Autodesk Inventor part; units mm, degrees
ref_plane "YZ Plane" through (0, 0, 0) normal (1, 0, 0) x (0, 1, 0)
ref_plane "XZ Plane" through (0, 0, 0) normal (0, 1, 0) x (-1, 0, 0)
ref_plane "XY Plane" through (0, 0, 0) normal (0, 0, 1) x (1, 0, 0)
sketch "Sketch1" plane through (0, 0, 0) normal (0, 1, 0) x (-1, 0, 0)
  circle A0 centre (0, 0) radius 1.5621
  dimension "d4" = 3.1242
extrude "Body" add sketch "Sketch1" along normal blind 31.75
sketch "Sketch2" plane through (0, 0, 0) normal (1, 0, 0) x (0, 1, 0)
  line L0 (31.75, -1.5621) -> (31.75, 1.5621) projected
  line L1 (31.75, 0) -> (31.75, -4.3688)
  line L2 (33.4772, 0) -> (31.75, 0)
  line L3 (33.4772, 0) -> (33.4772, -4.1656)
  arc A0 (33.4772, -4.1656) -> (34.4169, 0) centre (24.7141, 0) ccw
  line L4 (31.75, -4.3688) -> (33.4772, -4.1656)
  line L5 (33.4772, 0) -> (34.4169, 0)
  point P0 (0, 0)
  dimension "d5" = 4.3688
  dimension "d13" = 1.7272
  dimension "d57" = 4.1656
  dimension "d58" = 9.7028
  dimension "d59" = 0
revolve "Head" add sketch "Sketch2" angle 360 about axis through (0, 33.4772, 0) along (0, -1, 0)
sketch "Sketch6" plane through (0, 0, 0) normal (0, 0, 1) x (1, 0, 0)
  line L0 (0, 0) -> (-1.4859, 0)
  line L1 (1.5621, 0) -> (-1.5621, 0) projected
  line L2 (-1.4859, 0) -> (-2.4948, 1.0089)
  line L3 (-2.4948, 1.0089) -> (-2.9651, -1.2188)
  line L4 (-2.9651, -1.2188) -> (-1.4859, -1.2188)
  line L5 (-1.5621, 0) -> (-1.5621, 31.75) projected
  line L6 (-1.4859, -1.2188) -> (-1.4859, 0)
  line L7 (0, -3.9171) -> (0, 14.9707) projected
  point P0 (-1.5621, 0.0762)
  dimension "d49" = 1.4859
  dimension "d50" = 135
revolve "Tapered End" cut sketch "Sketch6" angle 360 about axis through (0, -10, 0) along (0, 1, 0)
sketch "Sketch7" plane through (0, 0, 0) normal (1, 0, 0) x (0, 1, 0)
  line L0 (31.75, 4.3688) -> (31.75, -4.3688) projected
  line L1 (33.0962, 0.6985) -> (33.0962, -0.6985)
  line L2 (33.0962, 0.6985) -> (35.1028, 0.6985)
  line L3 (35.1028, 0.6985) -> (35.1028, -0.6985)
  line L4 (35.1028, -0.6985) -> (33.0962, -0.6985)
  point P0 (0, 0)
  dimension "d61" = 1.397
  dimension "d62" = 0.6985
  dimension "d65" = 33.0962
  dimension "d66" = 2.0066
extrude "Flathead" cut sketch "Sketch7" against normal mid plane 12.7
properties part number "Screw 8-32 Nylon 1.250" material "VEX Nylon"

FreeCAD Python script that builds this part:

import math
import FreeCAD as App
import Part
import Sketcher

V = App.Vector
Q = App.Units.Quantity

doc = App.newDocument("Part")
body = doc.addObject("PartDesign::Body", "Body")

# Sketch on XZ plane
sketch1 = body.newObject("Sketcher::SketchObject", "Sketch")
sketch1.AttachmentSupport = (doc.getObject("XZ_Plane"), [""])
sketch1.MapMode = "FlatFace"
sketch1.addGeometry(Part.Circle(V(0, 0, 0), V(0, 0, 1), 1.6), False)
sketch1.addConstraint(Sketcher.Constraint("Coincident", 0, 3, -1, 1))
sketch1.addConstraint(Sketcher.Constraint("Diameter", 0, Q("0.123 in")))
pad1 = body.newObject("PartDesign::Pad", "Pad")
pad1.Profile = sketch1
pad1.Length = Q("1.25 in")
pad1.Reversed = True

# Sketch on YZ plane
sketch2 = body.newObject("Sketcher::SketchObject", "Sketch001")
sketch2.AttachmentSupport = (doc.getObject("YZ_Plane"), [""])
sketch2.MapMode = "FlatFace"
sketch2.addGeometry(Part.LineSegment(V(31.8, 0, 0), V(31.8, -4.4, 0)), False)
sketch2.addGeometry(Part.LineSegment(V(31.8, -4.4, 0), V(33.5, -4.2, 0)), False)
sketch2.addGeometry(Part.ArcOfCircle(Part.Circle(V(24.7, 0, 0), V(0, 0, 1), 9.7), math.radians(-25), math.radians(0)), False)
sketch2.addGeometry(Part.LineSegment(V(34.4, 0, 0), V(31.8, 0, 0)), False)
sketch2.addConstraint(Sketcher.Constraint("Coincident", 0, 2, 1, 1))
sketch2.addConstraint(Sketcher.Constraint("Coincident", 1, 2, 2, 1))
sketch2.addConstraint(Sketcher.Constraint("Coincident", 2, 2, 3, 1))
sketch2.addConstraint(Sketcher.Constraint("Coincident", 3, 2, 0, 1))
sketch2.addConstraint(Sketcher.Constraint("Vertical", 0))
sketch2.addConstraint(Sketcher.Constraint("Horizontal", 3))
sketch2.addConstraint(Sketcher.Constraint("PointOnObject", 2, 3, -1))
sketch2.addConstraint(Sketcher.Constraint("PointOnObject", 2, 2, -1))
sketch2.addConstraint(Sketcher.Constraint("Radius", 2, Q("0.382 in")))
sketch2.addConstraint(Sketcher.Constraint("DistanceY", 0, 2, 0, 1, Q("0.172 in")))
sketch2.addConstraint(Sketcher.Constraint("DistanceY", 1, 2, -1, 1, Q("0.164 in")))
sketch2.addConstraint(Sketcher.Constraint("DistanceX", 0, 2, 1, 2, Q("0.068 in")))
sketch2.addConstraint(Sketcher.Constraint("DistanceX", -1, 1, 0, 2, Q("1.25 in")))
revolution = body.newObject("PartDesign::Revolution", "Revolution")
revolution.Profile = sketch2
revolution.ReferenceAxis = (sketch2, ["H_Axis"])
revolution.Angle = 360

# Sketch on XY plane
sketch3 = body.newObject("Sketcher::SketchObject", "Sketch002")
sketch3.AttachmentSupport = (doc.getObject("XY_Plane"), [""])
sketch3.MapMode = "FlatFace"
sketch3.addGeometry(Part.LineSegment(V(-1.5, -1.2, 0), V(-1.5, 0, 0)), False)
sketch3.addGeometry(Part.LineSegment(V(-1.5, 0, 0), V(-2.5, 1, 0)), False)
sketch3.addGeometry(Part.LineSegment(V(-2.5, 1, 0), V(-3, -1.2, 0)), False)
sketch3.addGeometry(Part.LineSegment(V(-3, -1.2, 0), V(-1.5, -1.2, 0)), False)
sketch3.addConstraint(Sketcher.Constraint("Coincident", 0, 2, 1, 1))
sketch3.addConstraint(Sketcher.Constraint("Coincident", 1, 2, 2, 1))
sketch3.addConstraint(Sketcher.Constraint("Coincident", 2, 2, 3, 1))
sketch3.addConstraint(Sketcher.Constraint("Coincident", 3, 2, 0, 1))
sketch3.addConstraint(Sketcher.Constraint("Vertical", 0))
sketch3.addConstraint(Sketcher.Constraint("Horizontal", 3))
sketch3.addConstraint(Sketcher.Constraint("PointOnObject", 0, 2, -1))
sketch3.addConstraint(Sketcher.Constraint("Angle", 1, Q("135 deg")))
sketch3.addConstraint(Sketcher.Constraint("DistanceX", 0, 2, -1, 1, Q("0.0585 in")))
sketch3.addConstraint(Sketcher.Constraint("Angle", 2, Q("-101.921 deg")))
sketch3.addConstraint(Sketcher.Constraint("DistanceX", 3, 1, 3, 2, 1.4792))
sketch3.addConstraint(Sketcher.Constraint("DistanceY", 0, 1, 0, 2, 1.2188))
groove = body.newObject("PartDesign::Groove", "Groove")
groove.Profile = sketch3
groove.ReferenceAxis = (sketch3, ["V_Axis"])
groove.Angle = 360

# Sketch on YZ plane
sketch4 = body.newObject("Sketcher::SketchObject", "Sketch003")
sketch4.AttachmentSupport = (doc.getObject("YZ_Plane"), [""])
sketch4.MapMode = "FlatFace"
sketch4.addGeometry(Part.LineSegment(V(35.1, 0.7, 0), V(33.1, 0.7, 0)), False)
sketch4.addGeometry(Part.LineSegment(V(33.1, 0.7, 0), V(33.1, -0.7, 0)), False)
sketch4.addGeometry(Part.LineSegment(V(33.1, -0.7, 0), V(35.1, -0.7, 0)), False)
sketch4.addGeometry(Part.LineSegment(V(35.1, -0.7, 0), V(35.1, 0.7, 0)), False)
sketch4.addConstraint(Sketcher.Constraint("Coincident", 0, 2, 1, 1))
sketch4.addConstraint(Sketcher.Constraint("Coincident", 1, 2, 2, 1))
sketch4.addConstraint(Sketcher.Constraint("Coincident", 2, 2, 3, 1))
sketch4.addConstraint(Sketcher.Constraint("Coincident", 3, 2, 0, 1))
sketch4.addConstraint(Sketcher.Constraint("Horizontal", 0))
sketch4.addConstraint(Sketcher.Constraint("Vertical", 1))
sketch4.addConstraint(Sketcher.Constraint("Horizontal", 2))
sketch4.addConstraint(Sketcher.Constraint("Vertical", 3))
sketch4.addConstraint(Sketcher.Constraint("DistanceX", 0, 2, 0, 1, Q("0.079 in")))
sketch4.addConstraint(Sketcher.Constraint("DistanceY", 1, 2, 1, 1, Q("0.055 in")))
sketch4.addConstraint(Sketcher.Constraint("DistanceX", -1, 1, 0, 2, Q("1.303 in")))
sketch4.addConstraint(Sketcher.Constraint("DistanceY", -1, 1, 0, 2, Q("0.0275 in")))
pocket1 = body.newObject("PartDesign::Pocket", "Pocket")
pocket1.Profile = sketch4
pocket1.Length = Q("0.5 in")
pocket1.Midplane = True

doc.recompute()
